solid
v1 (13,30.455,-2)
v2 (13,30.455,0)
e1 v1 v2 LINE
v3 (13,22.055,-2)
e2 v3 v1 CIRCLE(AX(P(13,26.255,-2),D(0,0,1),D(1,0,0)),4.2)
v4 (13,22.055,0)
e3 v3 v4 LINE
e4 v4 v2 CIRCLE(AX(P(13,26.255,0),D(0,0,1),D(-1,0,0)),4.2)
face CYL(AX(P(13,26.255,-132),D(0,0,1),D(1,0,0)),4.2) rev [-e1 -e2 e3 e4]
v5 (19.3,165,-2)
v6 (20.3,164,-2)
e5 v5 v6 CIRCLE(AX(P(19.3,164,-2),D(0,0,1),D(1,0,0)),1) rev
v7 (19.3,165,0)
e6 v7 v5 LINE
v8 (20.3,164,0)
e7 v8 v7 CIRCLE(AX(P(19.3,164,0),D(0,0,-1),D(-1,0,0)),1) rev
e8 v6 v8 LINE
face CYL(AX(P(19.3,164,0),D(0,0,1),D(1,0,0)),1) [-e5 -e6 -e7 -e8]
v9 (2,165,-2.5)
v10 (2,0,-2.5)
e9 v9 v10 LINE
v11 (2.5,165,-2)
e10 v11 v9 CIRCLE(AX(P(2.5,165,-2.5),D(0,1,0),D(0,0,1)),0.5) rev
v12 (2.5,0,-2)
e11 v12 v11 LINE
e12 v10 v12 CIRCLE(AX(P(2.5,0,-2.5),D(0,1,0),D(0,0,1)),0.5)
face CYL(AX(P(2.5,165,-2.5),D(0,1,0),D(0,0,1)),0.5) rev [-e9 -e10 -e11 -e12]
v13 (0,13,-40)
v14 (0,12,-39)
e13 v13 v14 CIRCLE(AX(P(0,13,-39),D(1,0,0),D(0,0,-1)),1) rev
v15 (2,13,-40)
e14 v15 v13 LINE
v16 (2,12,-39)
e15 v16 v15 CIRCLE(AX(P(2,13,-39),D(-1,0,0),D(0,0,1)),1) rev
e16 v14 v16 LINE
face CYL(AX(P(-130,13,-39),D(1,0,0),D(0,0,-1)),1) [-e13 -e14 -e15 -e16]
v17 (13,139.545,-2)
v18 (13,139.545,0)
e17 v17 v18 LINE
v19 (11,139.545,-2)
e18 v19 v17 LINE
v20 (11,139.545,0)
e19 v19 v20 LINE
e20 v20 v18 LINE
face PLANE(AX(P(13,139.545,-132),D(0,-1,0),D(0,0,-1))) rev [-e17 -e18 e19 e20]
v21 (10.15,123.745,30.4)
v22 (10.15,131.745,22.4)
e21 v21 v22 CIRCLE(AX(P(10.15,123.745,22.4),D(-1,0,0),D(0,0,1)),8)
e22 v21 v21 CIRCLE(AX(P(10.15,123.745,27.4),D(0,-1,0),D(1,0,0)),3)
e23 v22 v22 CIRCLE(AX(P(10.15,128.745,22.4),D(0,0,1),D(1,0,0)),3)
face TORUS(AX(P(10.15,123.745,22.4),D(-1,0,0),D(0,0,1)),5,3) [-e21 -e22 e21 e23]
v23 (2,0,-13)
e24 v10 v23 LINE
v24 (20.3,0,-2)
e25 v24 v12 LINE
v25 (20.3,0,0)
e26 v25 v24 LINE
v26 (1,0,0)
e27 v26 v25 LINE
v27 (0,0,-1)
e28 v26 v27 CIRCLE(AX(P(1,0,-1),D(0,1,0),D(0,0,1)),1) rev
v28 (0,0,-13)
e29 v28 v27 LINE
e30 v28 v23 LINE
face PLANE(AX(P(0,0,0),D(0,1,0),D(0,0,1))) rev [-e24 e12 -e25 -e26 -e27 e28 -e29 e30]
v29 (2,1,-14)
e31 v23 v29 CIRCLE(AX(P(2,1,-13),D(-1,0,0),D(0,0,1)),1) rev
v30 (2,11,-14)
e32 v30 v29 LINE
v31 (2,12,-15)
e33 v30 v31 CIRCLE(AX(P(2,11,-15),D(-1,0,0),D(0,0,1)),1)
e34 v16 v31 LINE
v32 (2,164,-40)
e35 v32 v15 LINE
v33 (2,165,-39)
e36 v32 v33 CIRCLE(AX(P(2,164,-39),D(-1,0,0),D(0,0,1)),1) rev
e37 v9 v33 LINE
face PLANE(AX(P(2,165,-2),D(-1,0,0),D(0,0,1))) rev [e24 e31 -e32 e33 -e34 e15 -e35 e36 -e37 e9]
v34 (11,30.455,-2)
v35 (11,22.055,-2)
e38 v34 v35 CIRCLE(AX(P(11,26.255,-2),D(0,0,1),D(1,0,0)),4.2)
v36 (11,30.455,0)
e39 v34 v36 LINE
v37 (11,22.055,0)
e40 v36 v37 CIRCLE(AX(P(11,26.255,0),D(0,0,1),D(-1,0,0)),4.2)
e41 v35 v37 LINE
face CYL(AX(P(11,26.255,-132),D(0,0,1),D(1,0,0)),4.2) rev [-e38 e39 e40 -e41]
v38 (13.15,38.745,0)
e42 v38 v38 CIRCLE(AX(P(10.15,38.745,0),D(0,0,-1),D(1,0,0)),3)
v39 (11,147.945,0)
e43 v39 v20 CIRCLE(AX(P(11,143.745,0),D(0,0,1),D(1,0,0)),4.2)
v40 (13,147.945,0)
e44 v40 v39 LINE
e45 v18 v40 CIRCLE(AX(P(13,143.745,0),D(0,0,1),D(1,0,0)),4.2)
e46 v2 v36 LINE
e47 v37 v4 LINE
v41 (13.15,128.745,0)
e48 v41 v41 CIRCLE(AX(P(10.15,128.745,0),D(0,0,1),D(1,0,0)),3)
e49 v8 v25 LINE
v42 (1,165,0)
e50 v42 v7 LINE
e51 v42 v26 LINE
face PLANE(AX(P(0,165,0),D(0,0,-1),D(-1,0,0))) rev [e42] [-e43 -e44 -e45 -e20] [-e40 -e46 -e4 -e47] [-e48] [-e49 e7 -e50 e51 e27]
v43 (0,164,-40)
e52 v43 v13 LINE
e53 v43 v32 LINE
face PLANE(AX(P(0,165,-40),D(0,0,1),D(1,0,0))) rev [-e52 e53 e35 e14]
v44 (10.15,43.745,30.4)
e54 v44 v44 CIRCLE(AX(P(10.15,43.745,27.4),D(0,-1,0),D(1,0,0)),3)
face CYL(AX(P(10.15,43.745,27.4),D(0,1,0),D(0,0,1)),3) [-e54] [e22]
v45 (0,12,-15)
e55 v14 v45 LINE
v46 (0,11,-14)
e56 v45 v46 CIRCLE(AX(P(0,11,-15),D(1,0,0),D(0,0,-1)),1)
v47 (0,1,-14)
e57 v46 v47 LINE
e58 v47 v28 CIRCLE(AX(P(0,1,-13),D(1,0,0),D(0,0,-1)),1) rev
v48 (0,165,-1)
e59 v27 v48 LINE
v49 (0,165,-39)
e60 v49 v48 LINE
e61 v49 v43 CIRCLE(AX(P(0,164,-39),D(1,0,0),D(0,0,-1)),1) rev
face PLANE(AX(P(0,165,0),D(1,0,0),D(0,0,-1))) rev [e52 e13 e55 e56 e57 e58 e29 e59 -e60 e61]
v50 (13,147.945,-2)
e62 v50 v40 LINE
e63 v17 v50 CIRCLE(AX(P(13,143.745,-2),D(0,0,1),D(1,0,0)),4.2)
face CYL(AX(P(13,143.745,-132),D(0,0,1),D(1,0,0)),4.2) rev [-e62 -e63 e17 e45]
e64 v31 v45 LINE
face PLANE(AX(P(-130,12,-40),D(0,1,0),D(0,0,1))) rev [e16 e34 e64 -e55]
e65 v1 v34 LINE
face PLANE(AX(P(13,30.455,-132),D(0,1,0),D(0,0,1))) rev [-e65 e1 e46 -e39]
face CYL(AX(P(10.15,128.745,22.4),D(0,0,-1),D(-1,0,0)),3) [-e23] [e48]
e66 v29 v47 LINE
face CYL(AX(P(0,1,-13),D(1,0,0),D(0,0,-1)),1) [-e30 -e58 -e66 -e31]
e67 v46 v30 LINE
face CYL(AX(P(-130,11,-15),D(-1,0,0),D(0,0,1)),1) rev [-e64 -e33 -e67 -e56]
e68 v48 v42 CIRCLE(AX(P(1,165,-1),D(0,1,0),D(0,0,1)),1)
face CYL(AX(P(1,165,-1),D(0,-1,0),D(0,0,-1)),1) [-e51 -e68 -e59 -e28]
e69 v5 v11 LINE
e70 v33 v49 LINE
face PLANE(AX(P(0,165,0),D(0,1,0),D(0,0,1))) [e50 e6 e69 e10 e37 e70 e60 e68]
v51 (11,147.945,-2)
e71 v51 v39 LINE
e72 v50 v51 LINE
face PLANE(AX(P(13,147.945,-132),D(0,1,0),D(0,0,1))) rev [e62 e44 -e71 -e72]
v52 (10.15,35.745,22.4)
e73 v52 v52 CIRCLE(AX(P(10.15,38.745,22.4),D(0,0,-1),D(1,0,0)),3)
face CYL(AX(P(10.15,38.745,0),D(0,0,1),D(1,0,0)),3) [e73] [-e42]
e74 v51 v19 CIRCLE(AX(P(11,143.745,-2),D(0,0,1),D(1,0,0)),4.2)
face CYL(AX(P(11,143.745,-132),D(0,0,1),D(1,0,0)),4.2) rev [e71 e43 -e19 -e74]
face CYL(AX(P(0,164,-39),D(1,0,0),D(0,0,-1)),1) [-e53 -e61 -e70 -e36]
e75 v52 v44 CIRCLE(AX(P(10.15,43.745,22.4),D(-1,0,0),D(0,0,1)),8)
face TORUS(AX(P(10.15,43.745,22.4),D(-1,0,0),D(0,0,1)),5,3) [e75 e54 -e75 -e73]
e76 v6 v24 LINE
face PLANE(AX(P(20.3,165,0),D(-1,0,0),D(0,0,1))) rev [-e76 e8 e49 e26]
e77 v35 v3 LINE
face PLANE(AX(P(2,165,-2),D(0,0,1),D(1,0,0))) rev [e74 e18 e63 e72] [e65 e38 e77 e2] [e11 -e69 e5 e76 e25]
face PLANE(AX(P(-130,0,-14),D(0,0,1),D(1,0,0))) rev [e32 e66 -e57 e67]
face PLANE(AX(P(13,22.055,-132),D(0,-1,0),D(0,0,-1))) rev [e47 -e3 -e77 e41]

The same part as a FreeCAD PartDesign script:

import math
import FreeCAD as App
import Part
import Sketcher

V = App.Vector


def edges_at(feature, points):
    """Names of the edges that pass closest to the given points."""
    edges = feature.Shape.Edges
    near = lambda p: min(range(len(edges)), key=lambda i: edges[i].distToShape(Part.Vertex(*p))[0])
    return sorted({f"Edge{near(p) + 1}" for p in points})


def add_polygon(sketch, points):
    """Adds a closed chain of lines whose ends are joined by coincident constraints."""
    first, n = sketch.GeometryCount, len(points)
    for a, b in zip(points, points[1:] + points[:1]):
        sketch.addGeometry(Part.LineSegment(App.Vector(*a, 0), App.Vector(*b, 0)), False)
    for i in range(n):
        sketch.addConstraint(Sketcher.Constraint("Coincident", first + i, 2, first + (i + 1) % n, 1))

doc = App.newDocument("Part")
body = doc.addObject("PartDesign::Body", "Body")

# Sketch on XZ plane
sketch1 = body.newObject("Sketcher::SketchObject", "Sketch")
sketch1.AttachmentSupport = (doc.getObject("XZ_Plane"), [""])
sketch1.MapMode = "FlatFace"
add_polygon(sketch1, [(0, -40), (0, 0), (20.3, 0), (20.3, -2), (2, -2), (2, -40)])  # lines 0-5
sketch1.addConstraint([
    Sketcher.Constraint("Vertical", 0),
    Sketcher.Constraint("Horizontal", 1),
    Sketcher.Constraint("Vertical", 2),
    Sketcher.Constraint("Horizontal", 3),
    Sketcher.Constraint("Vertical", 4),
    Sketcher.Constraint("Horizontal", 5),
    Sketcher.Constraint("Coincident", 0, 2, -1, 1),
    Sketcher.Constraint("Equal", 5, 2),
    Sketcher.Constraint("DistanceX", 5, 2, 5, 1, 2.0),
    Sketcher.Constraint("DistanceY", 0, 1, 0, 2, 40.0),
    Sketcher.Constraint("DistanceX", 1, 1, 1, 2, 20.3),
])
pad1 = body.newObject("PartDesign::Pad", "Pad")
pad1.Profile = sketch1
pad1.Length = 165
pad1.Reversed = True

# Sketch on XY plane
sketch2 = body.newObject("Sketcher::SketchObject", "Sketch001")
sketch2.AttachmentSupport = (doc.getObject("XY_Plane"), [""])
sketch2.MapMode = "FlatFace"
sketch2.addGeometry([
    Part.LineSegment(V(11, 139.545, 0), V(13, 139.545, 0)),  # 0
    Part.ArcOfCircle(Part.Circle(V(13, 143.745, 0), V(0, 0, 1), 4.2), math.radians(-90), math.radians(90)),  # 1
    Part.LineSegment(V(13, 147.945, 0), V(11, 147.945, 0)),  # 2
    Part.ArcOfCircle(Part.Circle(V(11, 143.745, 0), V(0, 0, 1), 4.2), math.radians(90), math.radians(270)),  # 3
    Part.LineSegment(V(13, 30.455, 0), V(11, 30.455, 0)),  # 4
    Part.ArcOfCircle(Part.Circle(V(11, 26.255, 0), V(0, 0, 1), 4.2), math.radians(90), math.radians(270)),  # 5
    Part.LineSegment(V(11, 22.055, 0), V(13, 22.055, 0)),  # 6
    Part.ArcOfCircle(Part.Circle(V(13, 26.255, 0), V(0, 0, 1), 4.2), math.radians(-90), math.radians(90)),  # 7
], False)
sketch2.addConstraint([
    Sketcher.Constraint("Tangent", 0, 2, 1, 1),
    Sketcher.Constraint("Tangent", 1, 2, 2, 1),
    Sketcher.Constraint("Tangent", 2, 2, 3, 1),
    Sketcher.Constraint("Tangent", 3, 2, 0, 1),
    Sketcher.Constraint("Tangent", 4, 2, 5, 1),
    Sketcher.Constraint("Tangent", 5, 2, 6, 1),
    Sketcher.Constraint("Tangent", 6, 2, 7, 1),
    Sketcher.Constraint("Tangent", 7, 2, 4, 1),
    Sketcher.Constraint("Horizontal", 0),
    Sketcher.Constraint("Horizontal", 2),
    Sketcher.Constraint("Horizontal", 4),
    Sketcher.Constraint("Horizontal", 6),
    Sketcher.Constraint("Equal", 3, 5),
    Sketcher.Constraint("Vertical", 3, 3, 5, 3),
    Sketcher.Constraint("Vertical", 1, 3, 7, 3),
    Sketcher.Constraint("Radius", 1, 4.2),
    Sketcher.Constraint("DistanceX", 0, 1, 0, 2, 2.0),
    Sketcher.Constraint("DistanceX", -1, 1, 1, 3, 13.0),
    Sketcher.Constraint("DistanceY", 5, 3, 3, 3, 117.49),
    Sketcher.Constraint("DistanceY", -1, 1, 1, 3, 143.745),
])
pocket1 = body.newObject("PartDesign::Pocket", "Pocket")
pocket1.Profile = sketch2
pocket1.Length = 132

# Sketch on XY plane
sketch3 = body.newObject("Sketcher::SketchObject", "Sketch002")
sketch3.AttachmentSupport = (doc.getObject("XY_Plane"), [""])
sketch3.MapMode = "FlatFace"
sketch3.addGeometry(Part.Circle(V(10.15, 128.745, 0), V(0, 0, 1), 3), False)
sketch3.addConstraint([
    Sketcher.Constraint("Diameter", 0, 6.0),
    Sketcher.Constraint("DistanceX", -1, 1, 0, 3, 10.15),
    Sketcher.Constraint("DistanceY", -1, 1, 0, 3, 128.745),
])

# Sketch on YZ plane
sketch4 = body.newObject("Sketcher::SketchObject", "Sketch003")
sketch4.AttachmentSupport = (doc.getObject("YZ_Plane"), [""])
sketch4.MapMode = "FlatFace"
sketch4.AttachmentOffset = App.Placement(V(0, 0, 10.15), App.Rotation())
sketch4.addGeometry([
    Part.LineSegment(V(128.745, 0, 0), V(128.745, 22.4, 0)),  # 0
    Part.ArcOfCircle(Part.Circle(V(123.745, 22.4, 0), V(0, 0, 1), 5), math.radians(0), math.radians(90)),  # 1
    Part.LineSegment(V(123.745, 27.4, 0), V(43.745, 27.4, 0)),  # 2
    Part.ArcOfCircle(Part.Circle(V(43.745, 22.4, 0), V(0, 0, 1), 5), math.radians(90), math.radians(180)),  # 3
    Part.LineSegment(V(38.745, 22.4, 0), V(38.745, 0, 0)),  # 4
], False)
sketch4.addConstraint([
    Sketcher.Constraint("Tangent", 0, 2, 1, 1),
    Sketcher.Constraint("Tangent", 1, 2, 2, 1),
    Sketcher.Constraint("Tangent", 2, 2, 3, 1),
    Sketcher.Constraint("Tangent", 3, 2, 4, 1),
    Sketcher.Constraint("Vertical", 0),
    Sketcher.Constraint("Horizontal", 2),
    Sketcher.Constraint("Vertical", 4),
    Sketcher.Constraint("Equal", 1, 3),
    Sketcher.Constraint("PointOnObject", 0, 1, -1),
    Sketcher.Constraint("PointOnObject", 4, 2, -1),
    Sketcher.Constraint("Radius", 1, 5.0),
    Sketcher.Constraint("DistanceX", 2, 2, 2, 1, 80.0),
    Sketcher.Constraint("DistanceY", 0, 1, 0, 2, 22.4),
    Sketcher.Constraint("DistanceX", -1, 1, 1, 3, 123.745),
])
doc.recompute()

additivepipe = body.newObject("PartDesign::AdditivePipe", "AdditivePipe")
additivepipe.Profile = sketch3
additivepipe.Spine = (sketch4, ["Edge1", "Edge2", "Edge3", "Edge4", "Edge5"])

# Sketch on YZ plane
sketch5 = body.newObject("Sketcher::SketchObject", "Sketch004")
sketch5.AttachmentSupport = (doc.getObject("YZ_Plane"), [""])
sketch5.MapMode = "FlatFace"
sketch5.AttachmentOffset = App.Placement(V(0, 0, 2), App.Rotation())
add_polygon(sketch5, [(12, -14), (0, -14), (0, -40), (12, -40)])  # lines 0-3
sketch5.addConstraint([
    Sketcher.Constraint("Horizontal", 0),
    Sketcher.Constraint("Vertical", 1),
    Sketcher.Constraint("Horizontal", 2),
    Sketcher.Constraint("Vertical", 3),
    Sketcher.Constraint("PointOnObject", 0, 2, -2),
    Sketcher.Constraint("DistanceX", 0, 2, 0, 1, 12.0),
    Sketcher.Constraint("DistanceY", 1, 2, 1, 1, 26.0),
    Sketcher.Constraint("DistanceY", 0, 2, -1, 1, 14.0),
])
pocket2 = body.newObject("PartDesign::Pocket", "Pocket001")
pocket2.Profile = sketch5
pocket2.Length = 132
doc.recompute()

fillet = body.newObject("PartDesign::Fillet", "Fillet")
fillet.Base = (pocket2, edges_at(pocket2, [
    (0, 82.5, 0),
    (1, 165, -40),
    (1, 0, -14),
    (20.3, 165, -1),
    (1, 12, -14),
    (1, 12, -40),
]))
fillet.Radius = 1
doc.recompute()

fillet2 = body.newObject("PartDesign::Fillet", "Fillet001")
fillet2.Base = (fillet, edges_at(fillet, [(2, 82.5, -2)]))
fillet2.Radius = 0.5

doc.recompute()
